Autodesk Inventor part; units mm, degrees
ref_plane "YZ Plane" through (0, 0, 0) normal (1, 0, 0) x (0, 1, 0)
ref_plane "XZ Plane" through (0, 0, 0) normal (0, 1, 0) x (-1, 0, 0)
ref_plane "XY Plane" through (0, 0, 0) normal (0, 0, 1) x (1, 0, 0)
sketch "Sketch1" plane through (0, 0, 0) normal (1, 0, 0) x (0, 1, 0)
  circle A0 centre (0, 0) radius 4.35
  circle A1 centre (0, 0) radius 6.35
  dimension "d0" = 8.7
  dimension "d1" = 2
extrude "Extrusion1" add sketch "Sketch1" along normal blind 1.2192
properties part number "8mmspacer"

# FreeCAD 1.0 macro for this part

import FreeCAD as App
import Part
import Sketcher
Q = App.Units.Quantity

doc = App.newDocument("Part")
body = doc.addObject("PartDesign::Body", "Body")

sketch1 = body.newObject("Sketcher::SketchObject", "Sketch")
sketch1.AttachmentSupport = (doc.getObject("YZ_Plane"), [""])
sketch1.MapMode = "FlatFace"
sketch1.addGeometry([
    Part.Circle(App.Vector(0, 0, 0), App.Vector(0, 0, 1), 6.35),
    Part.Circle(App.Vector(0, 0, 0), App.Vector(0, 0, 1), 4.35),
], False)
sketch1.addConstraint([
    Sketcher.Constraint("Coincident", 0, 3, -1, 1),
    Sketcher.Constraint("Coincident", 1, 3, -1, 1),
    Sketcher.Constraint("Diameter", 0, Q("0.5 in")),
    Sketcher.Constraint("Diameter", 1, 8.7),
])
pad1 = body.newObject("PartDesign::Pad", "Pad")
pad1.Profile = sketch1
pad1.Length = Q("0.048 in")

doc.recompute()
